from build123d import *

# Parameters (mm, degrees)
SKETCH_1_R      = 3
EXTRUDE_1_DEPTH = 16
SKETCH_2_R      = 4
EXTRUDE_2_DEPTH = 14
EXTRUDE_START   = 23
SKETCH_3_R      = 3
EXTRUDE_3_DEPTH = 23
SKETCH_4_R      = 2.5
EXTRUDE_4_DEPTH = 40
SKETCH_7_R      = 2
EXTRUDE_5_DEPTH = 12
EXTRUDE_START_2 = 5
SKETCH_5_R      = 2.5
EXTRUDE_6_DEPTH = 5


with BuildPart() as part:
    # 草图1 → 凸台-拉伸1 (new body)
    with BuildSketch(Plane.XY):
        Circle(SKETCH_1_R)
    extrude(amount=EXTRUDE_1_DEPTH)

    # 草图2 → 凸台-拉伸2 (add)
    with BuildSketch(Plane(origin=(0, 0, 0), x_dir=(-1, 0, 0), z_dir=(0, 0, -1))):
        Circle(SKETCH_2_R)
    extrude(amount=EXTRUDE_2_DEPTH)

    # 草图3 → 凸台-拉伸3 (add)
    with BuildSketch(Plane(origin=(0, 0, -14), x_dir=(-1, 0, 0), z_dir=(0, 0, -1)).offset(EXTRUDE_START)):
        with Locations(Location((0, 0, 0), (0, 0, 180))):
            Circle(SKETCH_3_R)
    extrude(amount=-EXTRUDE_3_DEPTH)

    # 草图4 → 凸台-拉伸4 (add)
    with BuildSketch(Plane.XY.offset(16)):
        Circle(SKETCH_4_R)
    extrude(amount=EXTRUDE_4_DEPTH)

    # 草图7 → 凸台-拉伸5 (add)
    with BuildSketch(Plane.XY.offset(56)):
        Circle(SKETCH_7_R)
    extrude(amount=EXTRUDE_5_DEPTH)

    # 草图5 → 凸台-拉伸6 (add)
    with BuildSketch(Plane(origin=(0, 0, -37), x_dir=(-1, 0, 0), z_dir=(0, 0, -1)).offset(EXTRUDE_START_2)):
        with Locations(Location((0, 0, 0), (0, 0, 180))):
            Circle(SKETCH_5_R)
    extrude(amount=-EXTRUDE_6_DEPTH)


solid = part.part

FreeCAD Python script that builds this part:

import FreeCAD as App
import Part
import Sketcher

V = App.Vector

doc = App.newDocument("Part")
body = doc.addObject("PartDesign::Body", "Body")

# Sketch on XY plane
sketch1 = body.newObject("Sketcher::SketchObject", "Sketch")
sketch1.AttachmentSupport = (doc.getObject("XY_Plane"), [""])
sketch1.MapMode = "FlatFace"
sketch1.addGeometry(Part.Circle(V(0, 0, 0), V(0, 0, 1), 3), False)
sketch1.addConstraint([
    Sketcher.Constraint("Coincident", 0, 3, -1, 1),
    Sketcher.Constraint("Diameter", 0, 6.0),
])
pad1 = body.newObject("PartDesign::Pad", "Pad")
pad1.Profile = sketch1
pad1.Length = 16

# Sketch on XY plane
sketch2 = body.newObject("Sketcher::SketchObject", "Sketch001")
sketch2.AttachmentSupport = (doc.getObject("XY_Plane"), [""])
sketch2.MapMode = "FlatFace"
sketch2.addGeometry(Part.Circle(V(0, 0, 0), V(0, 0, 1), 4), False)
sketch2.addConstraint([
    Sketcher.Constraint("Coincident", 0, 3, -1, 1),
    Sketcher.Constraint("Diameter", 0, 8.0),
])
pad2 = body.newObject("PartDesign::Pad", "Pad001")
pad2.Profile = sketch2
pad2.Length = 14
pad2.Reversed = True

# Sketch on XY plane
sketch3 = body.newObject("Sketcher::SketchObject", "Sketch002")
sketch3.AttachmentSupport = (doc.getObject("XY_Plane"), [""])
sketch3.MapMode = "FlatFace"
sketch3.AttachmentOffset = App.Placement(V(0, 0, -37), App.Rotation())
sketch3.addGeometry(Part.Circle(V(0, 0, 0), V(0, 0, 1), 3), False)
sketch3.addConstraint([
    Sketcher.Constraint("Coincident", 0, 3, -1, 1),
    Sketcher.Constraint("Diameter", 0, 6.0),
])
pad3 = body.newObject("PartDesign::Pad", "Pad002")
pad3.Profile = sketch3
pad3.Length = 23

# Sketch on XY plane
sketch4 = body.newObject("Sketcher::SketchObject", "Sketch003")
sketch4.AttachmentSupport = (doc.getObject("XY_Plane"), [""])
sketch4.MapMode = "FlatFace"
sketch4.AttachmentOffset = App.Placement(V(0, 0, 16), App.Rotation())
sketch4.addGeometry(Part.Circle(V(0, 0, 0), V(0, 0, 1), 2.5), False)
sketch4.addConstraint([
    Sketcher.Constraint("Coincident", 0, 3, -1, 1),
    Sketcher.Constraint("Diameter", 0, 5.0),
])
pad4 = body.newObject("PartDesign::Pad", "Pad003")
pad4.Profile = sketch4
pad4.Length = 40

# Sketch on XY plane
sketch5 = body.newObject("Sketcher::SketchObject", "Sketch004")
sketch5.AttachmentSupport = (doc.getObject("XY_Plane"), [""])
sketch5.MapMode = "FlatFace"
sketch5.AttachmentOffset = App.Placement(V(0, 0, 56), App.Rotation())
sketch5.addGeometry(Part.Circle(V(0, 0, 0), V(0, 0, 1), 2), False)
sketch5.addConstraint([
    Sketcher.Constraint("Coincident", 0, 3, -1, 1),
    Sketcher.Constraint("Diameter", 0, 4.0),
])
pad5 = body.newObject("PartDesign::Pad", "Pad004")
pad5.Profile = sketch5
pad5.Length = 12

# Sketch on XY plane
sketch6 = body.newObject("Sketcher::SketchObject", "Sketch005")
sketch6.AttachmentSupport = (doc.getObject("XY_Plane"), [""])
sketch6.MapMode = "FlatFace"
sketch6.AttachmentOffset = App.Placement(V(0, 0, -42), App.Rotation())
sketch6.addGeometry(Part.Circle(V(0, 0, 0), V(0, 0, 1), 2.5), False)
sketch6.addConstraint([
    Sketcher.Constraint("Coincident", 0, 3, -1, 1),
    Sketcher.Constraint("Diameter", 0, 5.0),
])
pad6 = body.newObject("PartDesign::Pad", "Pad005")
pad6.Profile = sketch6
pad6.Length = 5

doc.recompute()
